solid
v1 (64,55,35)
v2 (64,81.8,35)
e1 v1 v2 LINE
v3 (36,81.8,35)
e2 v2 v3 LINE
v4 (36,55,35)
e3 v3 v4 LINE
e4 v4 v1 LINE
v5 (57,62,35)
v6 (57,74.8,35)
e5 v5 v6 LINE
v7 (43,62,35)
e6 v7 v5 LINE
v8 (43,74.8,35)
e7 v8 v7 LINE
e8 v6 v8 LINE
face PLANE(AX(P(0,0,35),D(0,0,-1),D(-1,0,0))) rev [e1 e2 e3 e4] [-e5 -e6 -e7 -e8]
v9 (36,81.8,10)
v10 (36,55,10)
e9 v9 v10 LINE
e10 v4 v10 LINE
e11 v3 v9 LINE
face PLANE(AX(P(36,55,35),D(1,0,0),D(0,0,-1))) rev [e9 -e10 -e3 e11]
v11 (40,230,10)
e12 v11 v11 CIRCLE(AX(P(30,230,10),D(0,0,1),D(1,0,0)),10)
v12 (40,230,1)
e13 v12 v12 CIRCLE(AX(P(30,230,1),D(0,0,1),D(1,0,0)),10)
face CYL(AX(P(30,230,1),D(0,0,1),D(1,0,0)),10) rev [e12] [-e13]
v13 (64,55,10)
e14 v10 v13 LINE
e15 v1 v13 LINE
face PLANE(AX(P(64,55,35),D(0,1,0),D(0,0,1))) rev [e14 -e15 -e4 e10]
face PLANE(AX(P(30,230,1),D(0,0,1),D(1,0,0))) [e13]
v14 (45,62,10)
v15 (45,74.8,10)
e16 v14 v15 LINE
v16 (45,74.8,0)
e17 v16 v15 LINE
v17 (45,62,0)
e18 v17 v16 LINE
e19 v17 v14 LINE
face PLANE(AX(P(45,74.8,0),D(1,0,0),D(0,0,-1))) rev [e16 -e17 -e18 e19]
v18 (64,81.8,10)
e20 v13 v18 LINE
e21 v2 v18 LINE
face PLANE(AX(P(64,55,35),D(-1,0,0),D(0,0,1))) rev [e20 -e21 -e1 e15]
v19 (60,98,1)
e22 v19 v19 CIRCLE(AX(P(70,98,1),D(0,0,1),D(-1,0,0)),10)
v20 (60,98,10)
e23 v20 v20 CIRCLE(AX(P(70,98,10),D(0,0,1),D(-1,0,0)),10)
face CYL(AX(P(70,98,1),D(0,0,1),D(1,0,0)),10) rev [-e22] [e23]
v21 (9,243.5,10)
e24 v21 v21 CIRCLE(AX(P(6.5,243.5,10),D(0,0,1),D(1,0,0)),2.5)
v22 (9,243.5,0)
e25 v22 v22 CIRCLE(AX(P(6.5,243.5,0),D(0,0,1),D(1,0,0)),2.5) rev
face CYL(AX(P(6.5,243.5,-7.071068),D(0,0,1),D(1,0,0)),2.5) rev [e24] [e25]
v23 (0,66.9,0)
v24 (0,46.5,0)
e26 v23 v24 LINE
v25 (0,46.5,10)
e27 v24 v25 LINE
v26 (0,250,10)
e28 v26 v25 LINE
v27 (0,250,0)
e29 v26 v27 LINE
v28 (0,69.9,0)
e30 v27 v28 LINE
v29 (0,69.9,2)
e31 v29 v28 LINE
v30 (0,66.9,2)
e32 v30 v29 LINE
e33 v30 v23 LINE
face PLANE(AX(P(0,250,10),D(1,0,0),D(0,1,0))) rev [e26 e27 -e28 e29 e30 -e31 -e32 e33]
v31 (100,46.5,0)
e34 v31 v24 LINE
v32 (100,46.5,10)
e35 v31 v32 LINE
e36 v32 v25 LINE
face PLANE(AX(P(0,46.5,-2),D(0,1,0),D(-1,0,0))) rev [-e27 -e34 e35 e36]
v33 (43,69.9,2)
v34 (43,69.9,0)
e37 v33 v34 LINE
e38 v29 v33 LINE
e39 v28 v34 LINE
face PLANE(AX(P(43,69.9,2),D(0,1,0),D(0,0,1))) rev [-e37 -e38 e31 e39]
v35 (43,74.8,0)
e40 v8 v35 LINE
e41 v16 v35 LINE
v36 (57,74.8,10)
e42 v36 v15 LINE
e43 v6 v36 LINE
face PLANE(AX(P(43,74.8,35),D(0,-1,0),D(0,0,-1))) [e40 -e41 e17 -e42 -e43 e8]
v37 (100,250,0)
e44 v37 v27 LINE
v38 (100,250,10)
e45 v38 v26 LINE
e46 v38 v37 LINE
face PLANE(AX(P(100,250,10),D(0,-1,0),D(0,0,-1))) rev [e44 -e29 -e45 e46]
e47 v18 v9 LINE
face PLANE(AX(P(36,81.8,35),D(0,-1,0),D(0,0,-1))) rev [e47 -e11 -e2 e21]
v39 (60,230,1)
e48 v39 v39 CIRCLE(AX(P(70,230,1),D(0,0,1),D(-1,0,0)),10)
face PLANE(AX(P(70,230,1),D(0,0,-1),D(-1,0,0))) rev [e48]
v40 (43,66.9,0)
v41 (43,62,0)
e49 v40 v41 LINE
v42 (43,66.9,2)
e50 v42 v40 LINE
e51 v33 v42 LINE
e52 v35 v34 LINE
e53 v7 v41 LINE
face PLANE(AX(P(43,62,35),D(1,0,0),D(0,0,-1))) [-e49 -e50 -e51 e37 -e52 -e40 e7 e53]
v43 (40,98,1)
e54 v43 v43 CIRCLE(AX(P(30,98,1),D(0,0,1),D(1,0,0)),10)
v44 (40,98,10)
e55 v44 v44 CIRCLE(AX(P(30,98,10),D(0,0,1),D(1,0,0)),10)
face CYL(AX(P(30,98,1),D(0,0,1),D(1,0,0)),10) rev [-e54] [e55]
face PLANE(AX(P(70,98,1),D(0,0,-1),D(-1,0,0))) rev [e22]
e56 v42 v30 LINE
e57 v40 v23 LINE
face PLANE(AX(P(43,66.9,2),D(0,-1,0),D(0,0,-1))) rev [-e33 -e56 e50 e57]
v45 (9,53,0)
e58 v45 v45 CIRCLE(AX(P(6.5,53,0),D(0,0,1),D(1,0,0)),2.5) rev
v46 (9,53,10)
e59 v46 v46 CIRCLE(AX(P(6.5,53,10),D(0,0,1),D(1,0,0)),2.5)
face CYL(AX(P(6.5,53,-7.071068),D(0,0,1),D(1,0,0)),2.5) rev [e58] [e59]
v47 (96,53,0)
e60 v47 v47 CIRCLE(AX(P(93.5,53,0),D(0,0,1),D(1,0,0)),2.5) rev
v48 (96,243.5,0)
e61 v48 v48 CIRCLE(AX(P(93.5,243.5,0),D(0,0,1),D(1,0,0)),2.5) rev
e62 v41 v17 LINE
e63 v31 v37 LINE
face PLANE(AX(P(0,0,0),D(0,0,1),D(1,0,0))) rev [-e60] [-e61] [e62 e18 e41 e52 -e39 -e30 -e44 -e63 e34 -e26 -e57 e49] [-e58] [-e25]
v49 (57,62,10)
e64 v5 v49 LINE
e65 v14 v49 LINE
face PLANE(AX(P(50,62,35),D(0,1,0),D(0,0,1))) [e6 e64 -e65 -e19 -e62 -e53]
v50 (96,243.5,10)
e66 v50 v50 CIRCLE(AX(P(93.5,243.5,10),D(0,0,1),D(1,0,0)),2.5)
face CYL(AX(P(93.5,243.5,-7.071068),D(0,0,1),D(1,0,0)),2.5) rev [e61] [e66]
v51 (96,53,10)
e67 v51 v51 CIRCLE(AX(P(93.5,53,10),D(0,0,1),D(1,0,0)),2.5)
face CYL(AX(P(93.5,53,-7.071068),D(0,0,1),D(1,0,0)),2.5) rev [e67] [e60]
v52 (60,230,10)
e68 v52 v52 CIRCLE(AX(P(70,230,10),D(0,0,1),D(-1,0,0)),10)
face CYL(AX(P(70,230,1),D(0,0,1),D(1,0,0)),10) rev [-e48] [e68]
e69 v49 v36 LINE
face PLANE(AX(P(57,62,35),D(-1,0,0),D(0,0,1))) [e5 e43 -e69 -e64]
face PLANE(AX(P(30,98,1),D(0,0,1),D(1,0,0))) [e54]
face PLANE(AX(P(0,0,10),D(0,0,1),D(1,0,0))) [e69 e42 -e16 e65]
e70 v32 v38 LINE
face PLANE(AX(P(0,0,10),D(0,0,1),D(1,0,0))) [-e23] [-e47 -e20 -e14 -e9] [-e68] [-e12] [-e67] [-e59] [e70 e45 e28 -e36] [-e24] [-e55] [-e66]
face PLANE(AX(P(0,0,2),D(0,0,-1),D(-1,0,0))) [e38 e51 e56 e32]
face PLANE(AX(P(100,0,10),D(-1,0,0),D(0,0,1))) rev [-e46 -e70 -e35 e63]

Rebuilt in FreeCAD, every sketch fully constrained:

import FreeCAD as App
import Part
import Sketcher

V = App.Vector
Q = App.Units.Quantity


def add_polygon(sketch, points):
    """Adds a closed chain of lines whose ends are joined by coincident constraints."""
    first, n = sketch.GeometryCount, len(points)
    for a, b in zip(points, points[1:] + points[:1]):
        sketch.addGeometry(Part.LineSegment(App.Vector(*a, 0), App.Vector(*b, 0)), False)
    for i in range(n):
        sketch.addConstraint(Sketcher.Constraint("Coincident", first + i, 2, first + (i + 1) % n, 1))

doc = App.newDocument("Part")
body = doc.addObject("PartDesign::Body", "Body")

# Sketch on XY plane
sketch1 = doc.addObject("Sketcher::SketchObject", "Sketch")
body.addObject(sketch1)
sketch1.AttachmentSupport = (doc.XY_Plane, [""])
sketch1.MapMode = "FlatFace"
add_polygon(sketch1, [(0, 250), (0, 0), (100, 0), (100, 250)])  # lines 0-3
sketch1.addConstraint([
    Sketcher.Constraint("Vertical", 0),
    Sketcher.Constraint("Horizontal", 1),
    Sketcher.Constraint("Vertical", 2),
    Sketcher.Constraint("Horizontal", 3),
    Sketcher.Constraint("Coincident", 0, 2, -1, 1),
    Sketcher.Constraint("DistanceX", 1, 1, 1, 2, Q("100 mm")),
    Sketcher.Constraint("DistanceY", 0, 2, 0, 1, Q("250 mm")),
])
pad1 = doc.addObject("PartDesign::Pad", "Pad")
body.addObject(pad1)
pad1.Profile = sketch1
pad1.Length = 10

# Sketch on XY plane
sketch2 = doc.addObject("Sketcher::SketchObject", "Sketch001")
body.addObject(sketch2)
sketch2.AttachmentSupport = (doc.XY_Plane, [""])
sketch2.MapMode = "FlatFace"
sketch2.AttachmentOffset = App.Placement(V(0, 0, 10), App.Rotation())
sketch2.addGeometry([
    Part.Circle(V(30, 98, 0), V(0, 0, 1), 10),
    Part.Circle(V(30, 230, 0), V(0, 0, 1), 10),
    Part.Circle(V(70, 230, 0), V(0, 0, 1), 10),
    Part.Circle(V(70, 98, 0), V(0, 0, 1), 10),
], False)
sketch2.addConstraint([
    Sketcher.Constraint("Equal", 0, 1),
    Sketcher.Constraint("Equal", 1, 2),
    Sketcher.Constraint("Equal", 2, 3),
    Sketcher.Constraint("Horizontal", 1, 3, 2, 3),
    Sketcher.Constraint("Horizontal", 0, 3, 3, 3),
    Sketcher.Constraint("Vertical", 0, 3, 1, 3),
    Sketcher.Constraint("Vertical", 2, 3, 3, 3),
    Sketcher.Constraint("Diameter", 0, Q("20 mm")),
    Sketcher.Constraint("DistanceX", -1, 1, 0, 3, Q("30 mm")),
    Sketcher.Constraint("DistanceY", -1, 1, 0, 3, Q("98 mm")),
    Sketcher.Constraint("DistanceY", -1, 1, 1, 3, Q("230 mm")),
    Sketcher.Constraint("DistanceX", -1, 1, 2, 3, Q("70 mm")),
])
pocket1 = doc.addObject("PartDesign::Pocket", "Pocket")
body.addObject(pocket1)
pocket1.Profile = sketch2
pocket1.Length = 9

# Sketch on XY plane
sketch3 = doc.addObject("Sketcher::SketchObject", "Sketch002")
body.addObject(sketch3)
sketch3.AttachmentSupport = (doc.XY_Plane, [""])
sketch3.MapMode = "FlatFace"
sketch3.AttachmentOffset = App.Placement(V(0, 0, 10), App.Rotation())
add_polygon(sketch3, [(36, 81.8), (36, 55), (64, 55), (64, 81.8)])  # lines 0-3
add_polygon(sketch3, [(57, 62), (43, 62), (43, 74.8), (57, 74.8)])  # lines 4-7
sketch3.addConstraint([
    Sketcher.Constraint("Vertical", 0),
    Sketcher.Constraint("Horizontal", 1),
    Sketcher.Constraint("Vertical", 2),
    Sketcher.Constraint("Horizontal", 3),
    Sketcher.Constraint("Horizontal", 4),
    Sketcher.Constraint("Vertical", 5),
    Sketcher.Constraint("Horizontal", 6),
    Sketcher.Constraint("Vertical", 7),
    Sketcher.Constraint("DistanceX", 1, 1, 1, 2, Q("28 mm")),
    Sketcher.Constraint("DistanceX", 4, 2, 4, 1, Q("14 mm")),
    Sketcher.Constraint("DistanceY", 0, 2, 0, 1, Q("26.8 mm")),
    Sketcher.Constraint("DistanceY", 5, 1, 5, 2, Q("12.8 mm")),
    Sketcher.Constraint("DistanceX", -1, 1, 0, 2, Q("36 mm")),
    Sketcher.Constraint("DistanceY", -1, 1, 0, 2, Q("55 mm")),
    Sketcher.Constraint("DistanceX", -1, 1, 4, 2, Q("43 mm")),
    Sketcher.Constraint("DistanceY", -1, 1, 4, 2, Q("62 mm")),
])
pad2 = doc.addObject("PartDesign::Pad", "Pad001")
body.addObject(pad2)
pad2.Profile = sketch3
pad2.Length = 25

# Sketch on XY plane
sketch4 = doc.addObject("Sketcher::SketchObject", "Sketch003")
body.addObject(sketch4)
sketch4.AttachmentSupport = (doc.XY_Plane, [""])
sketch4.MapMode = "FlatFace"
sketch4.AttachmentOffset = App.Placement(V(0, 0, 10), App.Rotation())
add_polygon(sketch4, [(43, 74.8), (43, 62), (45, 62), (45, 74.8)])  # lines 0-3
sketch4.addConstraint([
    Sketcher.Constraint("Vertical", 0),
    Sketcher.Constraint("Horizontal", 1),
    Sketcher.Constraint("Vertical", 2),
    Sketcher.Constraint("Horizontal", 3),
    Sketcher.Constraint("DistanceX", 1, 1, 1, 2, Q("2 mm")),
    Sketcher.Constraint("DistanceY", 0, 2, 0, 1, Q("12.8 mm")),
    Sketcher.Constraint("DistanceX", -1, 1, 0, 2, Q("43 mm")),
    Sketcher.Constraint("DistanceY", -1, 1, 0, 2, Q("62 mm")),
])
pocket2 = doc.addObject("PartDesign::Pocket", "Pocket001")
body.addObject(pocket2)
pocket2.Profile = sketch4
pocket2.Length = 10

# Sketch on XY plane
sketch5 = doc.addObject("Sketcher::SketchObject", "Sketch004")
body.addObject(sketch5)
sketch5.AttachmentSupport = (doc.XY_Plane, [""])
sketch5.MapMode = "FlatFace"
add_polygon(sketch5, [(43, 69.9), (43, 66.9), (0, 66.9), (0, 69.9)])  # lines 0-3
sketch5.addConstraint([
    Sketcher.Constraint("Vertical", 0),
    Sketcher.Constraint("Horizontal", 1),
    Sketcher.Constraint("Vertical", 2),
    Sketcher.Constraint("Horizontal", 3),
    Sketcher.Constraint("PointOnObject", 1, 2, -2),
    Sketcher.Constraint("DistanceX", 1, 2, 1, 1, Q("43 mm")),
    Sketcher.Constraint("DistanceY", 0, 2, 0, 1, Q("3 mm")),
    Sketcher.Constraint("DistanceY", -1, 1, 0, 2, Q("66.9 mm")),
])
pocket3 = doc.addObject("PartDesign::Pocket", "Pocket002")
body.addObject(pocket3)
pocket3.Profile = sketch5
pocket3.Length = 2
pocket3.Reversed = True

# Sketch on XY plane
sketch6 = doc.addObject("Sketcher::SketchObject", "Sketch005")
body.addObject(sketch6)
sketch6.AttachmentSupport = (doc.XY_Plane, [""])
sketch6.MapMode = "FlatFace"
sketch6.AttachmentOffset = App.Placement(V(0, 0, 10), App.Rotation())
add_polygon(sketch6, [(0, 46.5), (0, 0), (100, 0), (100, 46.5)])  # lines 0-3
sketch6.addConstraint([
    Sketcher.Constraint("Vertical", 0),
    Sketcher.Constraint("Horizontal", 1),
    Sketcher.Constraint("Vertical", 2),
    Sketcher.Constraint("Horizontal", 3),
    Sketcher.Constraint("Coincident", 0, 2, -1, 1),
    Sketcher.Constraint("DistanceX", 1, 1, 1, 2, Q("100 mm")),
    Sketcher.Constraint("DistanceY", 0, 2, 0, 1, Q("46.5 mm")),
])
pocket4 = doc.addObject("PartDesign::Pocket", "Pocket003")
body.addObject(pocket4)
pocket4.Profile = sketch6
pocket4.Length = 12

# Sketch on XY plane
sketch7 = doc.addObject("Sketcher::SketchObject", "Sketch006")
body.addObject(sketch7)
sketch7.AttachmentSupport = (doc.XY_Plane, [""])
sketch7.MapMode = "FlatFace"
sketch7.AttachmentOffset = App.Placement(V(0, 0, 10), App.Rotation())
sketch7.addGeometry([
    Part.Circle(V(6.5, 243.5, 0), V(0, 0, 1), 2.5),
    Part.Circle(V(93.5, 243.5, 0), V(0, 0, 1), 2.5),
    Part.Circle(V(6.5, 53, 0), V(0, 0, 1), 2.5),
    Part.Circle(V(93.5, 53, 0), V(0, 0, 1), 2.5),
], False)
sketch7.addConstraint([
    Sketcher.Constraint("Equal", 0, 1),
    Sketcher.Constraint("Equal", 1, 2),
    Sketcher.Constraint("Equal", 2, 3),
    Sketcher.Constraint("Horizontal", 0, 3, 1, 3),
    Sketcher.Constraint("Horizontal", 2, 3, 3, 3),
    Sketcher.Constraint("Vertical", 0, 3, 2, 3),
    Sketcher.Constraint("Vertical", 1, 3, 3, 3),
    Sketcher.Constraint("Diameter", 0, Q("5 mm")),
    Sketcher.Constraint("DistanceY", -1, 1, 2, 3, Q("53 mm")),
    Sketcher.Constraint("DistanceX", 0, 3, 1, 3, Q("87 mm")),
    Sketcher.Constraint("DistanceX", -1, 1, 0, 3, Q("6.5 mm")),
    Sketcher.Constraint("DistanceY", -1, 1, 0, 3, Q("243.5 mm")),
])
pocket5 = doc.addObject("PartDesign::Pocket", "Pocket004")
body.addObject(pocket5)
pocket5.Profile = sketch7
pocket5.Length = 10

doc.recompute()
